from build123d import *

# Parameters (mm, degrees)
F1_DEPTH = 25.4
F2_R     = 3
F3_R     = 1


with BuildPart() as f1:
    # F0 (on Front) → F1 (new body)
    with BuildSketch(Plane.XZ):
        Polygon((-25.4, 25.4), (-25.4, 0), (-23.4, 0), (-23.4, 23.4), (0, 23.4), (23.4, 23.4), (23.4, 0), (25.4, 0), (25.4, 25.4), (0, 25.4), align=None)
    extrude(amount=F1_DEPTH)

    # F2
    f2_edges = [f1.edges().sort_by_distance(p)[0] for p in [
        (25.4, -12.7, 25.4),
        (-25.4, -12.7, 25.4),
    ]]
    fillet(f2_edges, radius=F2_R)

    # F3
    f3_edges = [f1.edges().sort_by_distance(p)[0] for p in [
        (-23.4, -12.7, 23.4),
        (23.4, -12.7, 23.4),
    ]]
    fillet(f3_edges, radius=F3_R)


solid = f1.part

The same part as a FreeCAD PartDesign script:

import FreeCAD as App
import Part
import Sketcher
from FreeCAD import Vector
Q = App.Units.Quantity


def edges_at(feature, points):
    """Names of the edges that pass closest to the given points."""
    edges = feature.Shape.Edges
    near = lambda p: min(range(len(edges)), key=lambda i: edges[i].distToShape(Part.Vertex(*p))[0])
    return sorted({f"Edge{near(p) + 1}" for p in points})

doc = App.newDocument("Part")
body = doc.addObject("PartDesign::Body", "Body")

sketch1 = body.newObject("Sketcher::SketchObject", "Sketch")
sketch1.AttachmentSupport = (doc.getObject("XZ_Plane"), [""])
sketch1.MapMode = "FlatFace"
sketch1.addGeometry([
    Part.LineSegment(Vector(-25.4, 25.4, 0), Vector(-25.4, 0, 0)),
    Part.LineSegment(Vector(-25.4, 0, 0), Vector(-23.4, 0, 0)),
    Part.LineSegment(Vector(-23.4, 0, 0), Vector(-23.4, 23.4, 0)),
    Part.LineSegment(Vector(-23.4, 23.4, 0), Vector(23.4, 23.4, 0)),
    Part.LineSegment(Vector(23.4, 23.4, 0), Vector(23.4, 0, 0)),
    Part.LineSegment(Vector(23.4, 0, 0), Vector(25.4, 0, 0)),
    Part.LineSegment(Vector(25.4, 0, 0), Vector(25.4, 25.4, 0)),
    Part.LineSegment(Vector(25.4, 25.4, 0), Vector(-25.4, 25.4, 0)),
], False)
sketch1.addConstraint([
    Sketcher.Constraint("Coincident", 0, 2, 1, 1),
    Sketcher.Constraint("Coincident", 1, 2, 2, 1),
    Sketcher.Constraint("Coincident", 2, 2, 3, 1),
    Sketcher.Constraint("Coincident", 3, 2, 4, 1),
    Sketcher.Constraint("Coincident", 4, 2, 5, 1),
    Sketcher.Constraint("Coincident", 5, 2, 6, 1),
    Sketcher.Constraint("Coincident", 6, 2, 7, 1),
    Sketcher.Constraint("Coincident", 7, 2, 0, 1),
    Sketcher.Constraint("Vertical", 0),
    Sketcher.Constraint("Horizontal", 1),
    Sketcher.Constraint("Vertical", 2),
    Sketcher.Constraint("Horizontal", 3),
    Sketcher.Constraint("Vertical", 4),
    Sketcher.Constraint("Horizontal", 5),
    Sketcher.Constraint("Vertical", 6),
    Sketcher.Constraint("Horizontal", 7),
    Sketcher.Constraint("Symmetric", 1, 2, 4, 2, -1, 1),
    Sketcher.Constraint("Symmetric", 0, 2, 5, 2, -2),
    Sketcher.Constraint("DistanceX", 1, 1, 1, 2, Q("2 mm")),
    Sketcher.Constraint("DistanceX", 3, 1, 3, 2, Q("46.8 mm")),
    Sketcher.Constraint("DistanceY", 0, 2, 0, 1, Q("25.4 mm")),
    Sketcher.Constraint("DistanceY", 2, 1, 2, 2, Q("23.4 mm")),
])
pad1 = body.newObject("PartDesign::Pad", "Pad")
pad1.Profile = sketch1
pad1.Length = 25.4
doc.recompute()

fillet = body.newObject("PartDesign::Fillet", "Fillet")
fillet.Base = (pad1, edges_at(pad1, [(25.4, -12.7, 25.4), (-25.4, -12.7, 25.4)]))
fillet.Radius = 3
doc.recompute()

fillet2 = body.newObject("PartDesign::Fillet", "Fillet001")
fillet2.Base = (fillet, edges_at(fillet, [(-23.4, -12.7, 23.4), (23.4, -12.7, 23.4)]))
fillet2.Radius = 1

doc.recompute()
